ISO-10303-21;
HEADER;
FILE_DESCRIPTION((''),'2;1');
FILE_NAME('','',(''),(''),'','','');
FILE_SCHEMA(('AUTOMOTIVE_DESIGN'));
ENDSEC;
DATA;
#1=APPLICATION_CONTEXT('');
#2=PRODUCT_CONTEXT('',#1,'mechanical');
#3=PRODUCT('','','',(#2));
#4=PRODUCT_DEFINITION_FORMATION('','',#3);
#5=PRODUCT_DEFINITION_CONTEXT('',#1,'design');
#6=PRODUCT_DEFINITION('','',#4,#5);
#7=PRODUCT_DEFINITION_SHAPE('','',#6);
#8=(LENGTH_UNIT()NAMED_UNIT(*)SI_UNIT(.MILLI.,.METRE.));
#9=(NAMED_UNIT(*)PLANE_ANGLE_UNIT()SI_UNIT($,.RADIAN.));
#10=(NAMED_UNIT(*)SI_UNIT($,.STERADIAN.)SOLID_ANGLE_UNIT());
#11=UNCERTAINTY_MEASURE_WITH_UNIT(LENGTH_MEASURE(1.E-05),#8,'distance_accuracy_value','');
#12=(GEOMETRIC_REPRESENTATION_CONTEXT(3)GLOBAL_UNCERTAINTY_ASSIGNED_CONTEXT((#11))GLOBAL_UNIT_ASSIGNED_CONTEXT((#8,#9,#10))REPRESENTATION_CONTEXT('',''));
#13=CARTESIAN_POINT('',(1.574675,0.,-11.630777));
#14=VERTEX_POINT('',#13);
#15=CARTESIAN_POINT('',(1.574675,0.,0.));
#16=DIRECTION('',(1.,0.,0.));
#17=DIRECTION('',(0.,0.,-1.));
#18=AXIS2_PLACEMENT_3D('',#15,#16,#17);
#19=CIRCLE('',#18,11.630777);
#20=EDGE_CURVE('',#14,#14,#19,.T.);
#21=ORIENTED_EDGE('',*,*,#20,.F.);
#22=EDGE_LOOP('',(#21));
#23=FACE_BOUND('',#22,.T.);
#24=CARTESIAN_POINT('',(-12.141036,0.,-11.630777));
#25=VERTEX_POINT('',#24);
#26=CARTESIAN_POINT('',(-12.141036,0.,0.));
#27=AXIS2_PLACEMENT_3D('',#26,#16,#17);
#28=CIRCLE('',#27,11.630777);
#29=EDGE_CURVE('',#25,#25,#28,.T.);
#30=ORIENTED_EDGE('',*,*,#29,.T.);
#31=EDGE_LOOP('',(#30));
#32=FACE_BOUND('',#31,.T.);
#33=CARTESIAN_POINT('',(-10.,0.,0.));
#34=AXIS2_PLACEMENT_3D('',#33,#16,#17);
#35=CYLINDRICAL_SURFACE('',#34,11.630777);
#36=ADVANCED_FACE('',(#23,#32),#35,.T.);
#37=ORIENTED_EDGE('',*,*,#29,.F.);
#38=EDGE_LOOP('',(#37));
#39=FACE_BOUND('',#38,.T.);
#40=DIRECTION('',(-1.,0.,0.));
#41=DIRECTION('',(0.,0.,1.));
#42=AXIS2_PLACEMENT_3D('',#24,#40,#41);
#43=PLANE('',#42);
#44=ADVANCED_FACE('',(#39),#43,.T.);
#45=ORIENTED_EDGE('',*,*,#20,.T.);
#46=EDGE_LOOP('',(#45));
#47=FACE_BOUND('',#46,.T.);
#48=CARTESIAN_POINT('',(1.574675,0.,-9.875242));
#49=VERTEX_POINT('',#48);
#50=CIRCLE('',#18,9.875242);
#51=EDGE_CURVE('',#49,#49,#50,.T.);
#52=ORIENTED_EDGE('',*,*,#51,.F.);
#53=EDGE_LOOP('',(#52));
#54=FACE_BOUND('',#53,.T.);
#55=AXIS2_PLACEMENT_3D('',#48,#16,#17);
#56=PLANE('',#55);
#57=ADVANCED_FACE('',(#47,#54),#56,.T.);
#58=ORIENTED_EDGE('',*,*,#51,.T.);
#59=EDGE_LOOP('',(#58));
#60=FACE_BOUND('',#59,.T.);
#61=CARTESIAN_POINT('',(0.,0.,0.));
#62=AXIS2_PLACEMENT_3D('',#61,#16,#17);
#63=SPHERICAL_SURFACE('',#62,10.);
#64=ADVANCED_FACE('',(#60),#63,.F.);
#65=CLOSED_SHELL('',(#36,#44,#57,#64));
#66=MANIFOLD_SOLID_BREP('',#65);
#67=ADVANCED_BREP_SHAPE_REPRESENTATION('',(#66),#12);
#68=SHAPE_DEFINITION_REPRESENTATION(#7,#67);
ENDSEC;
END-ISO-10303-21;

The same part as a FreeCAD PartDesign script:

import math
import FreeCAD as App
import Part
import Sketcher
from FreeCAD import Vector
Q = App.Units.Quantity

doc = App.newDocument("Part")
body = doc.addObject("PartDesign::Body", "Body")

sketch1 = body.newObject("Sketcher::SketchObject", "Sketch")
sketch1.AttachmentSupport = (doc.getObject("XZ_Plane"), [""])
sketch1.MapMode = "FlatFace"
sketch1.addGeometry([
    Part.LineSegment(Vector(-12.1, 0, 0), Vector(-10, 0, 0)),
    Part.ArcOfCircle(Part.Circle(Vector(0, 0, 0), Vector(0, 0, 1), 10), math.radians(-180), math.radians(-81)),
    Part.LineSegment(Vector(1.6, -9.9, 0), Vector(1.6, -11.6, 0)),
    Part.LineSegment(Vector(1.6, -11.6, 0), Vector(-12.1, -11.6, 0)),
    Part.LineSegment(Vector(-12.1, -11.6, 0), Vector(-12.1, 0, 0)),
], False)
sketch1.addConstraint([
    Sketcher.Constraint("Coincident", 0, 2, 1, 1),
    Sketcher.Constraint("Coincident", 1, 2, 2, 1),
    Sketcher.Constraint("Coincident", 2, 2, 3, 1),
    Sketcher.Constraint("Coincident", 3, 2, 4, 1),
    Sketcher.Constraint("Coincident", 4, 2, 0, 1),
    Sketcher.Constraint("Horizontal", 0),
    Sketcher.Constraint("Vertical", 2),
    Sketcher.Constraint("Horizontal", 3),
    Sketcher.Constraint("Vertical", 4),
    Sketcher.Constraint("Coincident", 1, 3, -1, 1),
    Sketcher.Constraint("PointOnObject", 0, 2, -1),
    Sketcher.Constraint("Radius", 1, Q("10 mm")),
    Sketcher.Constraint("DistanceX", 3, 2, 3, 1, Q("13.715711 mm")),
    Sketcher.Constraint("DistanceX", 0, 1, 0, 2, Q("2.141036 mm")),
    Sketcher.Constraint("DistanceY", 2, 2, 2, 1, Q("1.755535 mm")),
])
revolution = body.newObject("PartDesign::Revolution", "Revolution")
revolution.Profile = sketch1
revolution.ReferenceAxis = (sketch1, ["H_Axis"])
revolution.Angle = 360

doc.recompute()
